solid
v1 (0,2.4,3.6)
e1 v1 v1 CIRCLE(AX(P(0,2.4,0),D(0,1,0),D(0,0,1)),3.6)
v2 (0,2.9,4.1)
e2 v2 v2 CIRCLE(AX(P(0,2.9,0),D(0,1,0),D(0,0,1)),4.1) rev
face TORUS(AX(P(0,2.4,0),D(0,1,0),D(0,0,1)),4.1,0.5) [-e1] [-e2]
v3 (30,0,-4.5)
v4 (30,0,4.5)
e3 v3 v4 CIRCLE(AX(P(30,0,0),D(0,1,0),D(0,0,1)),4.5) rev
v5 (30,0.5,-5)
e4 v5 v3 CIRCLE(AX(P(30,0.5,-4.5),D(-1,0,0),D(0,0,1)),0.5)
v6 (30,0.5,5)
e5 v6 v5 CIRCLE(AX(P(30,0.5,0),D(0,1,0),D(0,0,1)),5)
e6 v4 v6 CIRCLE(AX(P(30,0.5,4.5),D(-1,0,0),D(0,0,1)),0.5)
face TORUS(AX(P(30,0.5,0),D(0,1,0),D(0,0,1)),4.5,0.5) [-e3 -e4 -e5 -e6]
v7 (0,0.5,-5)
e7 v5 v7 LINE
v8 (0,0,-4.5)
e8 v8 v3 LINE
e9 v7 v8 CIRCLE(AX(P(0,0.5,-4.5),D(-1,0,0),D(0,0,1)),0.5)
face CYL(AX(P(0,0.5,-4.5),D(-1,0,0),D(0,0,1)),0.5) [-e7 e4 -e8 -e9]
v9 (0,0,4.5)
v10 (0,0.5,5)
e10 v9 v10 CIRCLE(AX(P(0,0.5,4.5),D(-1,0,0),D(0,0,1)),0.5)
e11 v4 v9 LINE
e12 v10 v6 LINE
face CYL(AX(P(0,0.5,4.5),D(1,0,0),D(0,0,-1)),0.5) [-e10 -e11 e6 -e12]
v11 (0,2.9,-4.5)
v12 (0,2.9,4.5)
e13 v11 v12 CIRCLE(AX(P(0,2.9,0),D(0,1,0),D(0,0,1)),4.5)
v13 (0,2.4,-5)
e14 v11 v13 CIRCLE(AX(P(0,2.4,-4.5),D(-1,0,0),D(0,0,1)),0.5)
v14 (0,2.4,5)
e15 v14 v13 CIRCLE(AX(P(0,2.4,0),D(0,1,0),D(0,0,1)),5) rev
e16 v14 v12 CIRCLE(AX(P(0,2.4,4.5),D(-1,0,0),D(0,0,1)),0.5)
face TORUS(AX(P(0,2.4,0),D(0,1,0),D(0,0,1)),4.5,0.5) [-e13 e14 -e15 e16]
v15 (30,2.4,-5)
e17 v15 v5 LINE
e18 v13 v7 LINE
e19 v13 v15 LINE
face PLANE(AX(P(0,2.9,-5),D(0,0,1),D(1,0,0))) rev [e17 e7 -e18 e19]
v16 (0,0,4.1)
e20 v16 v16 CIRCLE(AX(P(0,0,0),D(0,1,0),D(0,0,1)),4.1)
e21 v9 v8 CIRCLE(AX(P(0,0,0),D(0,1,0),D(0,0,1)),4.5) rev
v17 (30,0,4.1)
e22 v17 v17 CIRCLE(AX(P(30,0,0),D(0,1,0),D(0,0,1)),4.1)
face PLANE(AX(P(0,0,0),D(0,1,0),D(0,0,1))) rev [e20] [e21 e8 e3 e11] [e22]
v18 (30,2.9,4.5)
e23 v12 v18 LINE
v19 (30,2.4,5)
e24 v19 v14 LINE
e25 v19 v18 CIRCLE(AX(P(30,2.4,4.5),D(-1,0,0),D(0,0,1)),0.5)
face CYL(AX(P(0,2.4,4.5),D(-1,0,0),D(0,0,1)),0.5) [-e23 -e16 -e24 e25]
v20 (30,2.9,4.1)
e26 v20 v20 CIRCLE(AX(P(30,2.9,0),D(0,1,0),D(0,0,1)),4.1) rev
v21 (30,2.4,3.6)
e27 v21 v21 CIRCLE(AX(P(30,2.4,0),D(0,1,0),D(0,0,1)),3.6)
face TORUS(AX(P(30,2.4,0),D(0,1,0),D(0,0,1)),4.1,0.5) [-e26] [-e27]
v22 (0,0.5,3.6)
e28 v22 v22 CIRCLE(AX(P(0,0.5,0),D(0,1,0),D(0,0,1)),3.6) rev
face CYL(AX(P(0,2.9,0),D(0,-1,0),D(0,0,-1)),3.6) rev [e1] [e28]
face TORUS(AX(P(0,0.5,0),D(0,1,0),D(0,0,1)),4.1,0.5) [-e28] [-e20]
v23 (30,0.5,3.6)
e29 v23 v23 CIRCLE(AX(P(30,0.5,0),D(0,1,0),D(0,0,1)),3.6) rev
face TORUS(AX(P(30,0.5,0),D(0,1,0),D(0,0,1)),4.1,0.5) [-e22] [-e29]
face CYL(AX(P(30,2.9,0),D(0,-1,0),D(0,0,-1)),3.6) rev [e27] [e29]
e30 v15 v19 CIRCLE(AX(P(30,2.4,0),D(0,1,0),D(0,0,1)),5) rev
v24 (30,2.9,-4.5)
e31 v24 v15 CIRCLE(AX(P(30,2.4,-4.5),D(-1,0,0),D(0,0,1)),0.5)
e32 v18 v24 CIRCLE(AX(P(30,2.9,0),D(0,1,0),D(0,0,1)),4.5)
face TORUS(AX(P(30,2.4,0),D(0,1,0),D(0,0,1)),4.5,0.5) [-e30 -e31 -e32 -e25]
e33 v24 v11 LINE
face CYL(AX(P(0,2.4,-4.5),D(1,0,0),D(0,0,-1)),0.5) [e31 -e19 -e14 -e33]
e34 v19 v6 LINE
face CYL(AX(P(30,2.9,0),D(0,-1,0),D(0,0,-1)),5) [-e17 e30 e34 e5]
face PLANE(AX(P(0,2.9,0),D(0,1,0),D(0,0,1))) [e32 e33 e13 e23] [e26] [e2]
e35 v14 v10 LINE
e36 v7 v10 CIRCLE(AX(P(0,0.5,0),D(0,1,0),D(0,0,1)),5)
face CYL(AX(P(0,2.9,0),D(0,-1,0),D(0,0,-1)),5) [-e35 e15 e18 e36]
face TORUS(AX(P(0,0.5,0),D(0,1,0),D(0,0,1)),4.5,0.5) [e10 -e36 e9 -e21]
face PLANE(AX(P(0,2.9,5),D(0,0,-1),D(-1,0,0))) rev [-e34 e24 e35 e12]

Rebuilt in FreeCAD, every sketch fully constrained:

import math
import FreeCAD as App
import Part
import Sketcher
from FreeCAD import Vector


def edges_at(feature, points):
    """Names of the edges that pass closest to the given points."""
    edges = feature.Shape.Edges
    near = lambda p: min(range(len(edges)), key=lambda i: edges[i].distToShape(Part.Vertex(*p))[0])
    return sorted({f"Edge{near(p) + 1}" for p in points})

doc = App.newDocument("Part")
body = doc.addObject("PartDesign::Body", "Body")

# Sketch on XZ plane
sketch1 = doc.addObject("Sketcher::SketchObject", "Sketch")
body.addObject(sketch1)
sketch1.AttachmentSupport = (doc.XZ_Plane, [""])
sketch1.MapMode = "FlatFace"
sketch1.addGeometry(Part.LineSegment(Vector(30, -5, 0), Vector(0, -5, 0)), False)
sketch1.addGeometry(Part.ArcOfCircle(Part.Circle(Vector(0, 0, 0), Vector(0, 0, 1), 5), math.radians(90), math.radians(270)), False)
sketch1.addGeometry(Part.LineSegment(Vector(0, 5, 0), Vector(30, 5, 0)), False)
sketch1.addGeometry(Part.ArcOfCircle(Part.Circle(Vector(30, 0, 0), Vector(0, 0, 1), 5), math.radians(-90), math.radians(90)), False)
sketch1.addGeometry(Part.Circle(Vector(30, 0, 0), Vector(0, 0, 1), 3.6), False)
sketch1.addGeometry(Part.Circle(Vector(0, 0, 0), Vector(0, 0, 1), 3.6), False)
sketch1.addConstraint(Sketcher.Constraint("Tangent", 0, 2, 1, 2))
sketch1.addConstraint(Sketcher.Constraint("Tangent", 1, 1, 2, 1))
sketch1.addConstraint(Sketcher.Constraint("Tangent", 2, 2, 3, 2))
sketch1.addConstraint(Sketcher.Constraint("Tangent", 3, 1, 0, 1))
sketch1.addConstraint(Sketcher.Constraint("Horizontal", 0))
sketch1.addConstraint(Sketcher.Constraint("Horizontal", 2))
sketch1.addConstraint(Sketcher.Constraint("Coincident", 1, 3, -1, 1))
sketch1.addConstraint(Sketcher.Constraint("Coincident", 5, 3, -1, 1))
sketch1.addConstraint(Sketcher.Constraint("Coincident", 4, 3, 3, 3))
sketch1.addConstraint(Sketcher.Constraint("Equal", 4, 5))
sketch1.addConstraint(Sketcher.Constraint("Radius", 1, 5.0))
sketch1.addConstraint(Sketcher.Constraint("Diameter", 4, 7.2))
sketch1.addConstraint(Sketcher.Constraint("DistanceX", 0, 2, 0, 1, 30.0))
pad1 = doc.addObject("PartDesign::Pad", "Pad")
body.addObject(pad1)
pad1.Profile = sketch1
pad1.Length = 2.9
pad1.Reversed = True
doc.recompute()

fillet = doc.addObject("PartDesign::Fillet", "Fillet")
body.addObject(fillet)
fillet.Base = (pad1, edges_at(pad1, [
    (35, 2.9, 0),
    (-3.6, 0, 0),
    (-3.6, 2.9, 0),
    (15, 2.9, -5),
    (26.4, 0, 0),
    (26.4, 2.9, 0),
    (-5, 2.9, 0),
    (15, 0, -5),
    (35, 0, 0),
    (15, 0, 5),
    (-5, 0, 0),
    (15, 2.9, 5),
]))
fillet.Radius = 0.5

doc.recompute()
